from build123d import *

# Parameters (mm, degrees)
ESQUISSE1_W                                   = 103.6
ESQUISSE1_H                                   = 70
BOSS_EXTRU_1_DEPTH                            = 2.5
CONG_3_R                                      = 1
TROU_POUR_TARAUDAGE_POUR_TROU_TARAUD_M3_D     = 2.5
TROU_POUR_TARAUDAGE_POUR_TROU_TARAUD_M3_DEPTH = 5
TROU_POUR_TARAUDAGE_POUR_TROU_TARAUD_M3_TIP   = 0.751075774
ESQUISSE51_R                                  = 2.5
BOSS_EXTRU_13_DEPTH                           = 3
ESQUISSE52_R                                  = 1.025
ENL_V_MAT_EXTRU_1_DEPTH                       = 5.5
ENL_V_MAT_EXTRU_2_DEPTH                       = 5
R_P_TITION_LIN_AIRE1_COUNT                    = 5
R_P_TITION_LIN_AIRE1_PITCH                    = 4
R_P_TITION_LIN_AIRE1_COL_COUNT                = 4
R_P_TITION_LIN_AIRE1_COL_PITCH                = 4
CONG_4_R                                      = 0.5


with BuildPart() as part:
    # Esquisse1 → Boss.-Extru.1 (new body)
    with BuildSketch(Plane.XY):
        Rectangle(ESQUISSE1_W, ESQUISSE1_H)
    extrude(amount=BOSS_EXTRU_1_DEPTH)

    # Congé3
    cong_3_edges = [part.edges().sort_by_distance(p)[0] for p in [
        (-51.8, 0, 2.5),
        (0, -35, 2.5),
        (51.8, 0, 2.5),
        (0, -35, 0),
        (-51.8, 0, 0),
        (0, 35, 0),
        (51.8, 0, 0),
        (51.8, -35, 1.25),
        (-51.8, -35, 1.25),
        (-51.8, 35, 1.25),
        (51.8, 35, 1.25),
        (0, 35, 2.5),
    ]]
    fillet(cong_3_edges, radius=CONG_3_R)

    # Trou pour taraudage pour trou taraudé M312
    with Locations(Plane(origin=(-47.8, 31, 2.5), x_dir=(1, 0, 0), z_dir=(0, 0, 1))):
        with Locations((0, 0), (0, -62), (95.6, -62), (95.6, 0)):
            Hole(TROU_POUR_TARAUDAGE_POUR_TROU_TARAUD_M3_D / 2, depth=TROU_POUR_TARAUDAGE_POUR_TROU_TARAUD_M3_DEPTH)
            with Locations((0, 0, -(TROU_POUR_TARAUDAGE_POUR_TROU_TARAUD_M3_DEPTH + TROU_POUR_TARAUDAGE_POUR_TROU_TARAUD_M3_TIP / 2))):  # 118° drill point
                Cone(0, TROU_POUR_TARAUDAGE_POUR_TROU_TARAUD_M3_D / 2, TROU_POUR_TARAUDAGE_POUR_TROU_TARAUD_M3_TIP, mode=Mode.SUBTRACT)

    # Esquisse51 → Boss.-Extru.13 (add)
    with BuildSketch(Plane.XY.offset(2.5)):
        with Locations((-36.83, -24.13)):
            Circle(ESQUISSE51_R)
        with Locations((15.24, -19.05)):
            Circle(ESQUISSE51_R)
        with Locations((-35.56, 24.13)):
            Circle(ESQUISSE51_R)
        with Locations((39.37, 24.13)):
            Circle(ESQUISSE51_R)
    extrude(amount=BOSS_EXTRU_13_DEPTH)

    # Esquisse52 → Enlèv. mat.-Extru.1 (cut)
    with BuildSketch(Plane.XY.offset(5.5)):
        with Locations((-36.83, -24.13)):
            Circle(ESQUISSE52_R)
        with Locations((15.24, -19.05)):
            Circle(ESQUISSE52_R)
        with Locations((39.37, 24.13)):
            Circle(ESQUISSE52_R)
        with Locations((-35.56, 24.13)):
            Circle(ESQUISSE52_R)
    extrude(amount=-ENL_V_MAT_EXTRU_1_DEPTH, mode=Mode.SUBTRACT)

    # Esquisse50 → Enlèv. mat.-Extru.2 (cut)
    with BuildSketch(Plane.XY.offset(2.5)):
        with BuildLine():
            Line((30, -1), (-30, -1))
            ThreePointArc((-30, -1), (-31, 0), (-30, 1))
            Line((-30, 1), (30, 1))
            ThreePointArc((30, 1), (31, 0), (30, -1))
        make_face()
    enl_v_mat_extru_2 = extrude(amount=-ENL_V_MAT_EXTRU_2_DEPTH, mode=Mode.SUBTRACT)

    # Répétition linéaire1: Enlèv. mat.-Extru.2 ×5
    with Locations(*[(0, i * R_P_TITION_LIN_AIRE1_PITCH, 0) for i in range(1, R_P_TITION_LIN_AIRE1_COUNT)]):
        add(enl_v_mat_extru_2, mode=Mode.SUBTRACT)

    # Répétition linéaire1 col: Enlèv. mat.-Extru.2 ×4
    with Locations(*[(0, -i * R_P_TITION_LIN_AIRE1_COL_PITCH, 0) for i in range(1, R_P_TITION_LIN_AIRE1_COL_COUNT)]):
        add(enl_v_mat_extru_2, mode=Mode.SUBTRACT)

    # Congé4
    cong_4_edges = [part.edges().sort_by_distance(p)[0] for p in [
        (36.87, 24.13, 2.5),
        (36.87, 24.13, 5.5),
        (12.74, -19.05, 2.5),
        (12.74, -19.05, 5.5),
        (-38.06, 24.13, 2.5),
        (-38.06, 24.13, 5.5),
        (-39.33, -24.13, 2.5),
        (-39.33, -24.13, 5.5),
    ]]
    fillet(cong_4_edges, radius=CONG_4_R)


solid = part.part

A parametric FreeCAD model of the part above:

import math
import FreeCAD as App
import Part
import Sketcher

V = App.Vector
Q = App.Units.Quantity


def edges_at(feature, points):
    """Names of the edges that pass closest to the given points."""
    edges = feature.Shape.Edges
    near = lambda p: min(range(len(edges)), key=lambda i: edges[i].distToShape(Part.Vertex(*p))[0])
    return sorted({f"Edge{near(p) + 1}" for p in points})


def add_polygon(sketch, points):
    """Adds a closed chain of lines whose ends are joined by coincident constraints."""
    first, n = sketch.GeometryCount, len(points)
    for a, b in zip(points, points[1:] + points[:1]):
        sketch.addGeometry(Part.LineSegment(App.Vector(*a, 0), App.Vector(*b, 0)), False)
    for i in range(n):
        sketch.addConstraint(Sketcher.Constraint("Coincident", first + i, 2, first + (i + 1) % n, 1))

doc = App.newDocument("Part")
body = doc.addObject("PartDesign::Body", "Body")

sketch1 = body.newObject("Sketcher::SketchObject", "Sketch")
sketch1.AttachmentSupport = (doc.getObject("XY_Plane"), [""])
sketch1.MapMode = "FlatFace"
add_polygon(sketch1, [(-51.8, 35), (-51.8, -35), (51.8, -35), (51.8, 35)])
sketch1.addConstraint([
    Sketcher.Constraint("Vertical", 0),
    Sketcher.Constraint("Horizontal", 1),
    Sketcher.Constraint("Vertical", 2),
    Sketcher.Constraint("Horizontal", 3),
    Sketcher.Constraint("Symmetric", 0, 2, 2, 2, -1, 1),
    Sketcher.Constraint("DistanceY", 0, 2, 0, 1, Q("70 mm")),
    Sketcher.Constraint("DistanceX", 1, 1, 1, 2, Q("103.6 mm")),
])
pad1 = body.newObject("PartDesign::Pad", "Pad")
pad1.Profile = sketch1
pad1.Length = 2.5
doc.recompute()

fillet = body.newObject("PartDesign::Fillet", "Fillet")
fillet.Base = (pad1, ["Edge1"])
fillet.UseAllEdges = True
fillet.Radius = 1

sketch2 = body.newObject("Sketcher::SketchObject", "Sketch001")
sketch2.AttachmentSupport = (doc.getObject("XY_Plane"), [""])
sketch2.MapMode = "FlatFace"
sketch2.AttachmentOffset = App.Placement(V(0, 0, 2.5), App.Rotation())
sketch2.addGeometry([
    Part.Circle(V(-47.8, 31, 0), V(0, 0, 1), 1.25),
    Part.Circle(V(-47.8, -31, 0), V(0, 0, 1), 1.25),
    Part.Circle(V(47.8, -31, 0), V(0, 0, 1), 1.25),
    Part.Circle(V(47.8, 31, 0), V(0, 0, 1), 1.25),
], False)
sketch2.addConstraint([
    Sketcher.Constraint("Equal", 0, 1),
    Sketcher.Constraint("Equal", 1, 2),
    Sketcher.Constraint("Equal", 2, 3),
    Sketcher.Constraint("Symmetric", 0, 3, 2, 3, -1, 1),
    Sketcher.Constraint("Symmetric", 1, 3, 3, 3, -1, 1),
    Sketcher.Constraint("Symmetric", 1, 3, 2, 3, -2),
    Sketcher.Constraint("Diameter", 0, Q("2.5 mm")),
    Sketcher.Constraint("DistanceY", -1, 1, 0, 3, Q("31 mm")),
    Sketcher.Constraint("DistanceX", 0, 3, -1, 1, Q("47.8 mm")),
])
doc.recompute()
hole = body.newObject("PartDesign::Hole", "Hole")
hole.Profile = sketch2
hole.ThreadType = "None"
hole.Diameter = 2.5
hole.DepthType = "Dimension"
hole.Depth = 5
hole.DrillPoint = "Angled"
hole.DrillPointAngle = 118

sketch3 = body.newObject("Sketcher::SketchObject", "Sketch002")
sketch3.AttachmentSupport = (doc.getObject("XY_Plane"), [""])
sketch3.MapMode = "FlatFace"
sketch3.AttachmentOffset = App.Placement(V(0, 0, 2.5), App.Rotation())
sketch3.addGeometry([
    Part.Circle(V(-36.83, -24.13, 0), V(0, 0, 1), 2.5),
    Part.Circle(V(15.24, -19.05, 0), V(0, 0, 1), 2.5),
    Part.Circle(V(-35.56, 24.13, 0), V(0, 0, 1), 2.5),
    Part.Circle(V(39.37, 24.13, 0), V(0, 0, 1), 2.5),
], False)
sketch3.addConstraint([
    Sketcher.Constraint("Equal", 0, 1),
    Sketcher.Constraint("Equal", 1, 2),
    Sketcher.Constraint("Equal", 2, 3),
    Sketcher.Constraint("Horizontal", 2, 3, 3, 3),
    Sketcher.Constraint("Diameter", 0, Q("5 mm")),
    Sketcher.Constraint("DistanceX", 2, 3, 1, 3, Q("50.8 mm")),
    Sketcher.Constraint("DistanceX", 0, 3, 3, 3, Q("76.2 mm")),
    Sketcher.Constraint("DistanceX", 0, 3, -1, 1, Q("36.83 mm")),
    Sketcher.Constraint("DistanceY", 0, 3, -1, 1, Q("24.13 mm")),
    Sketcher.Constraint("DistanceX", -1, 1, 1, 3, Q("15.24 mm")),
    Sketcher.Constraint("DistanceY", 1, 3, -1, 1, Q("19.05 mm")),
    Sketcher.Constraint("DistanceY", -1, 1, 2, 3, Q("24.13 mm")),
])
pad2 = body.newObject("PartDesign::Pad", "Pad001")
pad2.Profile = sketch3
pad2.Length = 3

sketch4 = body.newObject("Sketcher::SketchObject", "Sketch003")
sketch4.AttachmentSupport = (doc.getObject("XY_Plane"), [""])
sketch4.MapMode = "FlatFace"
sketch4.AttachmentOffset = App.Placement(V(0, 0, 5.5), App.Rotation())
sketch4.addGeometry([
    Part.Circle(V(-36.83, -24.13, 0), V(0, 0, 1), 1.025),
    Part.Circle(V(15.24, -19.05, 0), V(0, 0, 1), 1.025),
    Part.Circle(V(39.37, 24.13, 0), V(0, 0, 1), 1.025),
    Part.Circle(V(-35.56, 24.13, 0), V(0, 0, 1), 1.025),
], False)
sketch4.addConstraint([
    Sketcher.Constraint("Equal", 0, 1),
    Sketcher.Constraint("Equal", 1, 2),
    Sketcher.Constraint("Equal", 2, 3),
    Sketcher.Constraint("Horizontal", 2, 3, 3, 3),
    Sketcher.Constraint("Diameter", 0, Q("2.05 mm")),
    Sketcher.Constraint("DistanceX", 0, 3, 2, 3, Q("76.2 mm")),
    Sketcher.Constraint("DistanceX", 3, 3, 1, 3, Q("50.8 mm")),
    Sketcher.Constraint("DistanceX", 0, 3, -1, 1, Q("36.83 mm")),
    Sketcher.Constraint("DistanceY", 0, 3, -1, 1, Q("24.13 mm")),
    Sketcher.Constraint("DistanceX", -1, 1, 1, 3, Q("15.24 mm")),
    Sketcher.Constraint("DistanceY", 1, 3, -1, 1, Q("19.05 mm")),
    Sketcher.Constraint("DistanceY", -1, 1, 2, 3, Q("24.13 mm")),
])
pocket1 = body.newObject("PartDesign::Pocket", "Pocket")
pocket1.Profile = sketch4
pocket1.Length = 5.5

sketch5 = body.newObject("Sketcher::SketchObject", "Sketch004")
sketch5.AttachmentSupport = (doc.getObject("XY_Plane"), [""])
sketch5.MapMode = "FlatFace"
sketch5.AttachmentOffset = App.Placement(V(0, 0, 2.5), App.Rotation())
sketch5.addGeometry([
    Part.LineSegment(V(-30, -1, 0), V(30, -1, 0)),
    Part.ArcOfCircle(Part.Circle(V(30, 0, 0), V(0, 0, 1), 1), math.radians(-90), math.radians(90)),
    Part.LineSegment(V(30, 1, 0), V(-30, 1, 0)),
    Part.ArcOfCircle(Part.Circle(V(-30, 0, 0), V(0, 0, 1), 1), math.radians(90), math.radians(270)),
], False)
sketch5.addConstraint([
    Sketcher.Constraint("Tangent", 0, 2, 1, 1),
    Sketcher.Constraint("Tangent", 1, 2, 2, 1),
    Sketcher.Constraint("Tangent", 2, 2, 3, 1),
    Sketcher.Constraint("Tangent", 3, 2, 0, 1),
    Sketcher.Constraint("Horizontal", 0),
    Sketcher.Constraint("Horizontal", 2),
    Sketcher.Constraint("Symmetric", 1, 3, 3, 3, -1, 1),
    Sketcher.Constraint("Radius", 1, Q("1 mm")),
    Sketcher.Constraint("DistanceX", 0, 1, 0, 2, Q("60 mm")),
])
pocket2 = body.newObject("PartDesign::Pocket", "Pocket001")
pocket2.Profile = sketch5
pocket2.Length = 5
doc.recompute()

linearpattern = body.newObject("PartDesign::LinearPattern", "LinearPattern")
linearpattern.Originals = [pocket2]
linearpattern.Direction = (doc.getObject("Y_Axis"), [""])
linearpattern.Mode = "offset"
linearpattern.Offset = 4
linearpattern.Occurrences = 5
body.Tip = linearpattern
doc.recompute()

linearpattern2 = body.newObject("PartDesign::LinearPattern", "LinearPattern001")
linearpattern2.Originals = [pocket2]
linearpattern2.Direction = (doc.getObject("Y_Axis"), [""])
linearpattern2.Mode = "offset"
linearpattern2.Offset = 4
linearpattern2.Occurrences = 4
linearpattern2.Reversed = True
body.Tip = linearpattern2
doc.recompute()

fillet2 = body.newObject("PartDesign::Fillet", "Fillet001")
fillet2.Base = (linearpattern2, edges_at(linearpattern2, [
    (36.87, 24.13, 2.5),
    (36.87, 24.13, 5.5),
    (12.74, -19.05, 2.5),
    (12.74, -19.05, 5.5),
    (-38.06, 24.13, 2.5),
    (-38.06, 24.13, 5.5),
    (-39.33, -24.13, 2.5),
    (-39.33, -24.13, 5.5),
]))
fillet2.Radius = 0.5

doc.recompute()
